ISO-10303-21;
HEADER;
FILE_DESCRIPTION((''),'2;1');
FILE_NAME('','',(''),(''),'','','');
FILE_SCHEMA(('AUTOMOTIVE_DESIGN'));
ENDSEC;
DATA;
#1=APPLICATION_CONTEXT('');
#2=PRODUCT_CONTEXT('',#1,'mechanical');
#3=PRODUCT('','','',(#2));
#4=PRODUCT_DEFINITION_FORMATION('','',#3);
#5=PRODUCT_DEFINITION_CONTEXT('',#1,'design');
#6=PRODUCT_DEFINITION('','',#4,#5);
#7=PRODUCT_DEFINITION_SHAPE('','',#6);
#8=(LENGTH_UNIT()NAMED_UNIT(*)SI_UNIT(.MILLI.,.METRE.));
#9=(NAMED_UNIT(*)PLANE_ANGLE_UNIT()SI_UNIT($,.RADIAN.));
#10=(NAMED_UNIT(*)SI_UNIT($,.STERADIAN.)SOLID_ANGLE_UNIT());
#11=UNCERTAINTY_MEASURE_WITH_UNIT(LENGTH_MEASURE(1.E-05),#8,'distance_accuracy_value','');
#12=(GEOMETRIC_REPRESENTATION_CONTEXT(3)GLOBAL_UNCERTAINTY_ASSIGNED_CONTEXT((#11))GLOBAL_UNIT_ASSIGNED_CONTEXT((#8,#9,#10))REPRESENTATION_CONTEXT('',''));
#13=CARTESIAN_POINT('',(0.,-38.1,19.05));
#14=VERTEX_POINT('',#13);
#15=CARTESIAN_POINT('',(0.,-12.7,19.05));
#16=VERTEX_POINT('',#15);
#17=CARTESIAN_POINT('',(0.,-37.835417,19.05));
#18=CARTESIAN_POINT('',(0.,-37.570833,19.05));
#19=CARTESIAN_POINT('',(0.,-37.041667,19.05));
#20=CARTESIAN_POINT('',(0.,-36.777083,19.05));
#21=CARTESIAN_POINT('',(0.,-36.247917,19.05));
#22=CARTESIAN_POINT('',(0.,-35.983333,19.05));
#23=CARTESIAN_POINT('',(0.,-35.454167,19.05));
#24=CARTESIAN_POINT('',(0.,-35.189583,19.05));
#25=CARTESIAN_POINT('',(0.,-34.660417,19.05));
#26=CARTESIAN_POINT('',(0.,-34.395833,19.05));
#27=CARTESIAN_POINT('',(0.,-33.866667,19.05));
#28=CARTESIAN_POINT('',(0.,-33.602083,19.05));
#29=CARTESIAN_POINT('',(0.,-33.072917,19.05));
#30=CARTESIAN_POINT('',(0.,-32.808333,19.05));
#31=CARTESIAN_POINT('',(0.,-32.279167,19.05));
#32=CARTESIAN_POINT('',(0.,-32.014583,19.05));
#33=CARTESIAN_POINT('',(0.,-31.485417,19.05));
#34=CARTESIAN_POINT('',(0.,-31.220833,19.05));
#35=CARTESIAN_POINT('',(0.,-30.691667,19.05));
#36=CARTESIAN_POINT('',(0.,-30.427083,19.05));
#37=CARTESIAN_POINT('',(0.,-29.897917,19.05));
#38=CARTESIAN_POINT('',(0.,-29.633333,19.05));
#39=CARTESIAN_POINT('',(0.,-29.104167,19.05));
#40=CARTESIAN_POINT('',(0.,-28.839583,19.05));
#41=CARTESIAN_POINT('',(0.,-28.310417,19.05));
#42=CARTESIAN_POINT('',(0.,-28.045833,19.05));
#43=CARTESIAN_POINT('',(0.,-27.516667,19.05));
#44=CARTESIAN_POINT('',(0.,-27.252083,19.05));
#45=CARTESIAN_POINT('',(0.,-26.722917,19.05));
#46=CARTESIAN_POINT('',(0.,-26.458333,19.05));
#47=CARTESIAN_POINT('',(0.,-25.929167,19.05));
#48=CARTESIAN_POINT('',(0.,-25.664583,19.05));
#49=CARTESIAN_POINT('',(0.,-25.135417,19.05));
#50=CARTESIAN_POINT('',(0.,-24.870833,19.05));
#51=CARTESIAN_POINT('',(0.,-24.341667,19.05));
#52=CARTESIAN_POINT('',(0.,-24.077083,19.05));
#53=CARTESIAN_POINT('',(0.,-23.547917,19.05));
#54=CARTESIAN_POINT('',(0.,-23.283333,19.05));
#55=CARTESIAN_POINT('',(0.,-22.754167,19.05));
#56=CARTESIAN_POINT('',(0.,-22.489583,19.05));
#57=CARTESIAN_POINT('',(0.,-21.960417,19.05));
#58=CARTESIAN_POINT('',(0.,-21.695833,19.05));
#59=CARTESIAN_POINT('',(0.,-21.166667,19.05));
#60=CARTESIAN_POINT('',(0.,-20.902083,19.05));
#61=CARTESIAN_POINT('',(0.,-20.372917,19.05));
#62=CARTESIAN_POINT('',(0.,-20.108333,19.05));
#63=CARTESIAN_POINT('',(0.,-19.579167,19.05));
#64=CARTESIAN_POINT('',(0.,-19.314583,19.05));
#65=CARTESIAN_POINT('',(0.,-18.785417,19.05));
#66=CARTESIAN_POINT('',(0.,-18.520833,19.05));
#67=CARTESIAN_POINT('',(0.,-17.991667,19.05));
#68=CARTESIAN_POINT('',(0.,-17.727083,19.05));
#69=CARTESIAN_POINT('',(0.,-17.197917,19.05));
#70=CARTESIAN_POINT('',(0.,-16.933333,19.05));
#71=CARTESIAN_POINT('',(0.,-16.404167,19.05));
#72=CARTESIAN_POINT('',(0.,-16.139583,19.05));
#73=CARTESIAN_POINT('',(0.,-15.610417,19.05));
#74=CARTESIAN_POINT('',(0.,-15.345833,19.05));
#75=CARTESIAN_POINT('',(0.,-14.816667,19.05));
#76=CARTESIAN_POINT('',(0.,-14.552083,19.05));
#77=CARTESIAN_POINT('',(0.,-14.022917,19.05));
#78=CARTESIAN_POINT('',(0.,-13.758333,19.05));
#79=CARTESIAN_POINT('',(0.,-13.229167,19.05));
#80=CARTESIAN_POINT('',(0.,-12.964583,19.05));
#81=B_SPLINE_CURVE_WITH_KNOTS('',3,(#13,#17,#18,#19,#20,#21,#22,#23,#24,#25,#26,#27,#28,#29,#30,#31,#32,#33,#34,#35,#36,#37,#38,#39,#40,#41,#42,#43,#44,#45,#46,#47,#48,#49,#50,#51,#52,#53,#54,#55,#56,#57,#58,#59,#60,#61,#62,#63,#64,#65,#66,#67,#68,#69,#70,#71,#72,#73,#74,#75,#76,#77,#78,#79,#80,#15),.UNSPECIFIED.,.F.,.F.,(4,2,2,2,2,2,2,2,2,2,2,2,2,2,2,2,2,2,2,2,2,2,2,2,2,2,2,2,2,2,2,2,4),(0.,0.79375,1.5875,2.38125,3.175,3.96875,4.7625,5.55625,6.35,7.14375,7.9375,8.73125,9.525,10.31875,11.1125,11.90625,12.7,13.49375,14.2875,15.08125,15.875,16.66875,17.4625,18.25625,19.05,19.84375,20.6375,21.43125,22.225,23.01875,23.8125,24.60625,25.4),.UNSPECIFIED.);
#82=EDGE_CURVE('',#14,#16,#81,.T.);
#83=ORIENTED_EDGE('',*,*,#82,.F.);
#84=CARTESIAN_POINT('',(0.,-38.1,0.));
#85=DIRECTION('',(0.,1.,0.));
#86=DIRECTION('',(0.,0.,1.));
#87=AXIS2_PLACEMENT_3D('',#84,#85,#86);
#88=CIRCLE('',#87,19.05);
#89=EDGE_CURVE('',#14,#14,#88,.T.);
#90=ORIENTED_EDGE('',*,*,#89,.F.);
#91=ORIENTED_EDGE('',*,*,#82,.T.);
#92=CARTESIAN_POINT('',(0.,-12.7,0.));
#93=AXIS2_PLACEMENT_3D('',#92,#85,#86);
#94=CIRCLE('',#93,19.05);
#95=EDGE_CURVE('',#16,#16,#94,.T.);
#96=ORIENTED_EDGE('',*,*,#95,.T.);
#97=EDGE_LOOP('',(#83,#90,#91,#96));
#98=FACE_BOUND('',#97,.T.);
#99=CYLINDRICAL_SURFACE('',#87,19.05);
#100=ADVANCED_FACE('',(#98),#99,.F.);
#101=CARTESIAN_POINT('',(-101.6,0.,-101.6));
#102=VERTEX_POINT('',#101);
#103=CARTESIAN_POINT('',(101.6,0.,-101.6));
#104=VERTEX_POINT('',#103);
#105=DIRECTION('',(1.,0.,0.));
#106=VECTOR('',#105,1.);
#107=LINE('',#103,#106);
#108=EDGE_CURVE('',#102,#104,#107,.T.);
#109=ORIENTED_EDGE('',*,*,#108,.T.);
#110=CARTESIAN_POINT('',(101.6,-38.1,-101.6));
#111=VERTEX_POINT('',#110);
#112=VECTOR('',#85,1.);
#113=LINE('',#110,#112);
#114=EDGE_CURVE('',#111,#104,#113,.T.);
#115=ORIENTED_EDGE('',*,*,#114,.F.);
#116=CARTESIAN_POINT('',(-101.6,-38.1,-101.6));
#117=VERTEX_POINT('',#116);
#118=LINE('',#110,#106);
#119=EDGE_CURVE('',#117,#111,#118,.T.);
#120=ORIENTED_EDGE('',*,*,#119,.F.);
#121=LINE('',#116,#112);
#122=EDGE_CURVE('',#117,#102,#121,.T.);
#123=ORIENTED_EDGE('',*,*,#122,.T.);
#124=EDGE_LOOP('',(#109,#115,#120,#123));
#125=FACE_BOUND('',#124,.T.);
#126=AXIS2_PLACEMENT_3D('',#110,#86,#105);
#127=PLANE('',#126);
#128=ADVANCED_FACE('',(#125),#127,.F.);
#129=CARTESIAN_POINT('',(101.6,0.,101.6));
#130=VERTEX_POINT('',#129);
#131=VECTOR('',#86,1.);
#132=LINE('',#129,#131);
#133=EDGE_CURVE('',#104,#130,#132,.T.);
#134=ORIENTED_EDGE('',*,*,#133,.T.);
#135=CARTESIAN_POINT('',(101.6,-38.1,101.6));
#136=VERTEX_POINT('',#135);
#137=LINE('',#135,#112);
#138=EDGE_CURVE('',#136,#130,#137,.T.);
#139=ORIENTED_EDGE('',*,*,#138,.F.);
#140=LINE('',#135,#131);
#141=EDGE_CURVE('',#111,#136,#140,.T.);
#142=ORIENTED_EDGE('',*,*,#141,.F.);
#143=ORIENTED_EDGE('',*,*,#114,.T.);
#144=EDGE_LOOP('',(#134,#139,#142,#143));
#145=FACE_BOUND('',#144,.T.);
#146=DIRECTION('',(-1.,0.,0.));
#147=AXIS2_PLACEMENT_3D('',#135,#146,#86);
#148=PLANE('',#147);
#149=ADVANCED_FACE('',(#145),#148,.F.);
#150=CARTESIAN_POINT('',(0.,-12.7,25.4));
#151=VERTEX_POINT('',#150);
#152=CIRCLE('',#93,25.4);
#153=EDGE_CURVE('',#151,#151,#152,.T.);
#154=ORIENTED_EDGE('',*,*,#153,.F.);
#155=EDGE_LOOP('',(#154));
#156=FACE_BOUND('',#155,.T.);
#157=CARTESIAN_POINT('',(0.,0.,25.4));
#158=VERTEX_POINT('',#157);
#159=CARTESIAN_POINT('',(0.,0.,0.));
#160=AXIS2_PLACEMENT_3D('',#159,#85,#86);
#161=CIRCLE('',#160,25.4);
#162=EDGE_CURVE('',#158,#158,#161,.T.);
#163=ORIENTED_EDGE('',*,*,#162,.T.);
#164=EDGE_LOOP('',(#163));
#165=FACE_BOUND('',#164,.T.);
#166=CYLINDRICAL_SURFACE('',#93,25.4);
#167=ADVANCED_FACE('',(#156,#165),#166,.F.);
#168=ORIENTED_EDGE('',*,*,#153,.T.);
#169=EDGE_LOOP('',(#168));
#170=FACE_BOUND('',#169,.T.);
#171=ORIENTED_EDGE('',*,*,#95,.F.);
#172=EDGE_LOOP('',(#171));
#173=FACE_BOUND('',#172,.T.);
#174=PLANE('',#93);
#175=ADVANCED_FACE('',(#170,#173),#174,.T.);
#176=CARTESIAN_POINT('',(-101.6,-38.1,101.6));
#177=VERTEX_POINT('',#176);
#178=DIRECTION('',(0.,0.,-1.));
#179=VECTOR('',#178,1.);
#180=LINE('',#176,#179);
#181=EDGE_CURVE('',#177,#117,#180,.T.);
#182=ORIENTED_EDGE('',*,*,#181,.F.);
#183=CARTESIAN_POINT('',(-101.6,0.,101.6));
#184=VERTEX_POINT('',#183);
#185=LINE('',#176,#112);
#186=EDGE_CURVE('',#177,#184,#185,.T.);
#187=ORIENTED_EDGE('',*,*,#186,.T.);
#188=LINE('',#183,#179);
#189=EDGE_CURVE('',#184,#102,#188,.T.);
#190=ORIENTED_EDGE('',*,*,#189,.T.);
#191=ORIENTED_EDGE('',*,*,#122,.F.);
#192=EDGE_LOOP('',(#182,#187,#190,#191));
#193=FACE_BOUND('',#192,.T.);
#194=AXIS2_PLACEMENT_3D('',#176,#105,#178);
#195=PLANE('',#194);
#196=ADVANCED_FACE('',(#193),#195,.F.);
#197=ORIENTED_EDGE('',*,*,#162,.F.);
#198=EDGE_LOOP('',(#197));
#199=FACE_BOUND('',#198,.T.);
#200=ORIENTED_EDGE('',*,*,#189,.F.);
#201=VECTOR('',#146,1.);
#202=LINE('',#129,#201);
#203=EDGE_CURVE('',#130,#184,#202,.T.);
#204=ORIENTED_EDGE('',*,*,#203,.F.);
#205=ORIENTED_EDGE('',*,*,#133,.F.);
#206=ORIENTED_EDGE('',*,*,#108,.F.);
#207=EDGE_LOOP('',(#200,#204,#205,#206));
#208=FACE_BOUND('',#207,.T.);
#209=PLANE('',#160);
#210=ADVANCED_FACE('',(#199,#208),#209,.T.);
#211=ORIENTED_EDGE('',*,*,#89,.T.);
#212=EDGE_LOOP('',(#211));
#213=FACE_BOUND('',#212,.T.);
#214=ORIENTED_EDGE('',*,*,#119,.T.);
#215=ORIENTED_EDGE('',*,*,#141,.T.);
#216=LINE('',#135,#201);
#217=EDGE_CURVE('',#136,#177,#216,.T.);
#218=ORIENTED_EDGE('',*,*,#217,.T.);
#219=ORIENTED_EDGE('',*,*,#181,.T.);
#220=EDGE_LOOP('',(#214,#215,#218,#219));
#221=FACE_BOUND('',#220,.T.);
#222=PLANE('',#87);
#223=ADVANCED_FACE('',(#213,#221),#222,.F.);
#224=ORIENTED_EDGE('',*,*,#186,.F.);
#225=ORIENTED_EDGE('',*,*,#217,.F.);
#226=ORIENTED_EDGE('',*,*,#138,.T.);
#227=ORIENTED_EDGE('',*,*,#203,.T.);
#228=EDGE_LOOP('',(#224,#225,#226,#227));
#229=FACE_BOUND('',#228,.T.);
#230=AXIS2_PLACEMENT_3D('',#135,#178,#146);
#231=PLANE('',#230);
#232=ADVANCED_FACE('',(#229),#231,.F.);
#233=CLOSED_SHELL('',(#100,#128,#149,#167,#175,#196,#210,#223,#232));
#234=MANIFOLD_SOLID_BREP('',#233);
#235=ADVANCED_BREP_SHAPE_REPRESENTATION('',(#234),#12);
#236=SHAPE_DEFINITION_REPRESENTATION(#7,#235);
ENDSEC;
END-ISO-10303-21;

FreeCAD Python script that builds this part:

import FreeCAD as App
import Part
import Sketcher
Q = App.Units.Quantity


def add_polygon(sketch, points):
    """Adds a closed chain of lines whose ends are joined by coincident constraints."""
    first, n = sketch.GeometryCount, len(points)
    for a, b in zip(points, points[1:] + points[:1]):
        sketch.addGeometry(Part.LineSegment(App.Vector(*a, 0), App.Vector(*b, 0)), False)
    for i in range(n):
        sketch.addConstraint(Sketcher.Constraint("Coincident", first + i, 2, first + (i + 1) % n, 1))

doc = App.newDocument("Part")
body = doc.addObject("PartDesign::Body", "Body")

# Sketch on XZ plane
sketch1 = body.newObject("Sketcher::SketchObject", "Sketch")
sketch1.AttachmentSupport = (doc.getObject("XZ_Plane"), [""])
sketch1.MapMode = "FlatFace"
add_polygon(sketch1, [(-102, 102), (-102, -102), (102, -102), (102, 102)])  # lines 0-3
sketch1.addConstraint(Sketcher.Constraint("Vertical", 0))
sketch1.addConstraint(Sketcher.Constraint("Horizontal", 1))
sketch1.addConstraint(Sketcher.Constraint("Vertical", 2))
sketch1.addConstraint(Sketcher.Constraint("Horizontal", 3))
sketch1.addConstraint(Sketcher.Constraint("Symmetric", 0, 2, 2, 2, -1, 1))
sketch1.addConstraint(Sketcher.Constraint("Equal", 3, 0))
sketch1.addConstraint(Sketcher.Constraint("DistanceX", 1, 1, 1, 2, Q("8 in")))
pad1 = body.newObject("PartDesign::Pad", "Pad")
pad1.Profile = sketch1
pad1.Length = Q("1.5 in")

# Sketch on XZ plane
sketch2 = body.newObject("Sketcher::SketchObject", "Sketch001")
sketch2.AttachmentSupport = (doc.getObject("XZ_Plane"), [""])
sketch2.MapMode = "FlatFace"
sketch2.addGeometry(Part.Circle(App.Vector(0, 0, 0), App.Vector(0, 0, 1), 25), False)
sketch2.addConstraint(Sketcher.Constraint("Coincident", 0, 3, -1, 1))
sketch2.addConstraint(Sketcher.Constraint("Diameter", 0, Q("2 in")))
pocket1 = body.newObject("PartDesign::Pocket", "Pocket")
pocket1.Profile = sketch2
pocket1.Length = Q("0.5 in")
pocket1.Reversed = True

# Sketch on XZ plane
sketch3 = body.newObject("Sketcher::SketchObject", "Sketch002")
sketch3.AttachmentSupport = (doc.getObject("XZ_Plane"), [""])
sketch3.MapMode = "FlatFace"
sketch3.AttachmentOffset = App.Placement(App.Vector(0, 0, 0.5 * 25.4), App.Rotation())
sketch3.addGeometry(Part.Circle(App.Vector(0, 0, 0), App.Vector(0, 0, 1), 19), False)
sketch3.addConstraint(Sketcher.Constraint("Coincident", 0, 3, -1, 1))
sketch3.addConstraint(Sketcher.Constraint("Diameter", 0, Q("1.5 in")))
pocket2 = body.newObject("PartDesign::Pocket", "Pocket001")
pocket2.Profile = sketch3
pocket2.Type = "ThroughAll"
pocket2.Reversed = True

doc.recompute()
